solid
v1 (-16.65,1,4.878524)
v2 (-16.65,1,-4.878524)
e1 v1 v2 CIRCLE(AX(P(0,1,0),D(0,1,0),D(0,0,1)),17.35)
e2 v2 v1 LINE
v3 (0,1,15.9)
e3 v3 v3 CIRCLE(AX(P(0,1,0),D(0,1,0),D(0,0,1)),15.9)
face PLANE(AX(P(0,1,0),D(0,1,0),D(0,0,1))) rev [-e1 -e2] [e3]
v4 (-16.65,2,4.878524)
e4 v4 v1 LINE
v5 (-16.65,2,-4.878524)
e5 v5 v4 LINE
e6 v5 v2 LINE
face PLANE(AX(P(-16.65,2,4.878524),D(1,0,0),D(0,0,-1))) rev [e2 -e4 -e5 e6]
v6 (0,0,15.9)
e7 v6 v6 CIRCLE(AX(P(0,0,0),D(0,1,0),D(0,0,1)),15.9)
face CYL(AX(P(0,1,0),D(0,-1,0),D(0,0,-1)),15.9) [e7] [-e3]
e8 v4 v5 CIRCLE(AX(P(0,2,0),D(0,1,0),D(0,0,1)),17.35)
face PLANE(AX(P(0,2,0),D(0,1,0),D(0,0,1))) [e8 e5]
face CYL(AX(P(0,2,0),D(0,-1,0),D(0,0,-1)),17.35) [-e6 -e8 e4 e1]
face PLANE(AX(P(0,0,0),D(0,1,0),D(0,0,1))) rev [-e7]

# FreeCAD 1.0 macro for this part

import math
import FreeCAD as App
import Part
import Sketcher
from FreeCAD import Vector

doc = App.newDocument("Part")
body = doc.addObject("PartDesign::Body", "Body")

sketch1 = doc.addObject("Sketcher::SketchObject", "Sketch")
body.addObject(sketch1)
sketch1.AttachmentSupport = (doc.XZ_Plane, [""])
sketch1.MapMode = "FlatFace"
sketch1.addGeometry(Part.Circle(Vector(0, 0, 0), Vector(0, 0, 1), 16), False)
sketch1.addConstraint([
    Sketcher.Constraint("Coincident", 0, 3, -1, 1),
    Sketcher.Constraint("Diameter", 0, 31.8),
])
pad1 = doc.addObject("PartDesign::Pad", "Pad")
body.addObject(pad1)
pad1.Profile = sketch1
pad1.Length = 1
pad1.Reversed = True

sketch2 = doc.addObject("Sketcher::SketchObject", "Sketch001")
body.addObject(sketch2)
sketch2.AttachmentSupport = (doc.XZ_Plane, [""])
sketch2.MapMode = "FlatFace"
sketch2.AttachmentOffset = App.Placement(Vector(0, 0, -1), App.Rotation())
sketch2.addGeometry(Part.Circle(Vector(0, 0, 0), Vector(0, 0, 1), 17), False)
sketch2.addConstraint([
    Sketcher.Constraint("Coincident", 0, 3, -1, 1),
    Sketcher.Constraint("Diameter", 0, 34.7),
])
pad2 = doc.addObject("PartDesign::Pad", "Pad001")
body.addObject(pad2)
pad2.Profile = sketch2
pad2.Length = 1
pad2.Reversed = True

sketch3 = doc.addObject("Sketcher::SketchObject", "Sketch002")
body.addObject(sketch3)
sketch3.AttachmentSupport = (doc.XZ_Plane, [""])
sketch3.MapMode = "FlatFace"
sketch3.AttachmentOffset = App.Placement(Vector(0, 0, -1), App.Rotation())
sketch3.addGeometry([
    Part.LineSegment(Vector(-17, -5, 0), Vector(-17, 5, 0)),
    Part.ArcOfCircle(Part.Circle(Vector(0, 0, 0), Vector(0, 0, 1), 17), math.radians(164), math.radians(196)),
], False)
sketch3.addConstraint([
    Sketcher.Constraint("Coincident", 0, 1, 1, 2),
    Sketcher.Constraint("Coincident", 1, 1, 0, 2),
    Sketcher.Constraint("Vertical", 0),
    Sketcher.Constraint("Coincident", 1, 3, -1, 1),
    Sketcher.Constraint("Radius", 1, 17.35),
    Sketcher.Constraint("DistanceX", 0, 1, -1, 1, 16.65),
])
pocket1 = doc.addObject("PartDesign::Pocket", "Pocket")
body.addObject(pocket1)
pocket1.Profile = sketch3
pocket1.Length = 1

doc.recompute()
